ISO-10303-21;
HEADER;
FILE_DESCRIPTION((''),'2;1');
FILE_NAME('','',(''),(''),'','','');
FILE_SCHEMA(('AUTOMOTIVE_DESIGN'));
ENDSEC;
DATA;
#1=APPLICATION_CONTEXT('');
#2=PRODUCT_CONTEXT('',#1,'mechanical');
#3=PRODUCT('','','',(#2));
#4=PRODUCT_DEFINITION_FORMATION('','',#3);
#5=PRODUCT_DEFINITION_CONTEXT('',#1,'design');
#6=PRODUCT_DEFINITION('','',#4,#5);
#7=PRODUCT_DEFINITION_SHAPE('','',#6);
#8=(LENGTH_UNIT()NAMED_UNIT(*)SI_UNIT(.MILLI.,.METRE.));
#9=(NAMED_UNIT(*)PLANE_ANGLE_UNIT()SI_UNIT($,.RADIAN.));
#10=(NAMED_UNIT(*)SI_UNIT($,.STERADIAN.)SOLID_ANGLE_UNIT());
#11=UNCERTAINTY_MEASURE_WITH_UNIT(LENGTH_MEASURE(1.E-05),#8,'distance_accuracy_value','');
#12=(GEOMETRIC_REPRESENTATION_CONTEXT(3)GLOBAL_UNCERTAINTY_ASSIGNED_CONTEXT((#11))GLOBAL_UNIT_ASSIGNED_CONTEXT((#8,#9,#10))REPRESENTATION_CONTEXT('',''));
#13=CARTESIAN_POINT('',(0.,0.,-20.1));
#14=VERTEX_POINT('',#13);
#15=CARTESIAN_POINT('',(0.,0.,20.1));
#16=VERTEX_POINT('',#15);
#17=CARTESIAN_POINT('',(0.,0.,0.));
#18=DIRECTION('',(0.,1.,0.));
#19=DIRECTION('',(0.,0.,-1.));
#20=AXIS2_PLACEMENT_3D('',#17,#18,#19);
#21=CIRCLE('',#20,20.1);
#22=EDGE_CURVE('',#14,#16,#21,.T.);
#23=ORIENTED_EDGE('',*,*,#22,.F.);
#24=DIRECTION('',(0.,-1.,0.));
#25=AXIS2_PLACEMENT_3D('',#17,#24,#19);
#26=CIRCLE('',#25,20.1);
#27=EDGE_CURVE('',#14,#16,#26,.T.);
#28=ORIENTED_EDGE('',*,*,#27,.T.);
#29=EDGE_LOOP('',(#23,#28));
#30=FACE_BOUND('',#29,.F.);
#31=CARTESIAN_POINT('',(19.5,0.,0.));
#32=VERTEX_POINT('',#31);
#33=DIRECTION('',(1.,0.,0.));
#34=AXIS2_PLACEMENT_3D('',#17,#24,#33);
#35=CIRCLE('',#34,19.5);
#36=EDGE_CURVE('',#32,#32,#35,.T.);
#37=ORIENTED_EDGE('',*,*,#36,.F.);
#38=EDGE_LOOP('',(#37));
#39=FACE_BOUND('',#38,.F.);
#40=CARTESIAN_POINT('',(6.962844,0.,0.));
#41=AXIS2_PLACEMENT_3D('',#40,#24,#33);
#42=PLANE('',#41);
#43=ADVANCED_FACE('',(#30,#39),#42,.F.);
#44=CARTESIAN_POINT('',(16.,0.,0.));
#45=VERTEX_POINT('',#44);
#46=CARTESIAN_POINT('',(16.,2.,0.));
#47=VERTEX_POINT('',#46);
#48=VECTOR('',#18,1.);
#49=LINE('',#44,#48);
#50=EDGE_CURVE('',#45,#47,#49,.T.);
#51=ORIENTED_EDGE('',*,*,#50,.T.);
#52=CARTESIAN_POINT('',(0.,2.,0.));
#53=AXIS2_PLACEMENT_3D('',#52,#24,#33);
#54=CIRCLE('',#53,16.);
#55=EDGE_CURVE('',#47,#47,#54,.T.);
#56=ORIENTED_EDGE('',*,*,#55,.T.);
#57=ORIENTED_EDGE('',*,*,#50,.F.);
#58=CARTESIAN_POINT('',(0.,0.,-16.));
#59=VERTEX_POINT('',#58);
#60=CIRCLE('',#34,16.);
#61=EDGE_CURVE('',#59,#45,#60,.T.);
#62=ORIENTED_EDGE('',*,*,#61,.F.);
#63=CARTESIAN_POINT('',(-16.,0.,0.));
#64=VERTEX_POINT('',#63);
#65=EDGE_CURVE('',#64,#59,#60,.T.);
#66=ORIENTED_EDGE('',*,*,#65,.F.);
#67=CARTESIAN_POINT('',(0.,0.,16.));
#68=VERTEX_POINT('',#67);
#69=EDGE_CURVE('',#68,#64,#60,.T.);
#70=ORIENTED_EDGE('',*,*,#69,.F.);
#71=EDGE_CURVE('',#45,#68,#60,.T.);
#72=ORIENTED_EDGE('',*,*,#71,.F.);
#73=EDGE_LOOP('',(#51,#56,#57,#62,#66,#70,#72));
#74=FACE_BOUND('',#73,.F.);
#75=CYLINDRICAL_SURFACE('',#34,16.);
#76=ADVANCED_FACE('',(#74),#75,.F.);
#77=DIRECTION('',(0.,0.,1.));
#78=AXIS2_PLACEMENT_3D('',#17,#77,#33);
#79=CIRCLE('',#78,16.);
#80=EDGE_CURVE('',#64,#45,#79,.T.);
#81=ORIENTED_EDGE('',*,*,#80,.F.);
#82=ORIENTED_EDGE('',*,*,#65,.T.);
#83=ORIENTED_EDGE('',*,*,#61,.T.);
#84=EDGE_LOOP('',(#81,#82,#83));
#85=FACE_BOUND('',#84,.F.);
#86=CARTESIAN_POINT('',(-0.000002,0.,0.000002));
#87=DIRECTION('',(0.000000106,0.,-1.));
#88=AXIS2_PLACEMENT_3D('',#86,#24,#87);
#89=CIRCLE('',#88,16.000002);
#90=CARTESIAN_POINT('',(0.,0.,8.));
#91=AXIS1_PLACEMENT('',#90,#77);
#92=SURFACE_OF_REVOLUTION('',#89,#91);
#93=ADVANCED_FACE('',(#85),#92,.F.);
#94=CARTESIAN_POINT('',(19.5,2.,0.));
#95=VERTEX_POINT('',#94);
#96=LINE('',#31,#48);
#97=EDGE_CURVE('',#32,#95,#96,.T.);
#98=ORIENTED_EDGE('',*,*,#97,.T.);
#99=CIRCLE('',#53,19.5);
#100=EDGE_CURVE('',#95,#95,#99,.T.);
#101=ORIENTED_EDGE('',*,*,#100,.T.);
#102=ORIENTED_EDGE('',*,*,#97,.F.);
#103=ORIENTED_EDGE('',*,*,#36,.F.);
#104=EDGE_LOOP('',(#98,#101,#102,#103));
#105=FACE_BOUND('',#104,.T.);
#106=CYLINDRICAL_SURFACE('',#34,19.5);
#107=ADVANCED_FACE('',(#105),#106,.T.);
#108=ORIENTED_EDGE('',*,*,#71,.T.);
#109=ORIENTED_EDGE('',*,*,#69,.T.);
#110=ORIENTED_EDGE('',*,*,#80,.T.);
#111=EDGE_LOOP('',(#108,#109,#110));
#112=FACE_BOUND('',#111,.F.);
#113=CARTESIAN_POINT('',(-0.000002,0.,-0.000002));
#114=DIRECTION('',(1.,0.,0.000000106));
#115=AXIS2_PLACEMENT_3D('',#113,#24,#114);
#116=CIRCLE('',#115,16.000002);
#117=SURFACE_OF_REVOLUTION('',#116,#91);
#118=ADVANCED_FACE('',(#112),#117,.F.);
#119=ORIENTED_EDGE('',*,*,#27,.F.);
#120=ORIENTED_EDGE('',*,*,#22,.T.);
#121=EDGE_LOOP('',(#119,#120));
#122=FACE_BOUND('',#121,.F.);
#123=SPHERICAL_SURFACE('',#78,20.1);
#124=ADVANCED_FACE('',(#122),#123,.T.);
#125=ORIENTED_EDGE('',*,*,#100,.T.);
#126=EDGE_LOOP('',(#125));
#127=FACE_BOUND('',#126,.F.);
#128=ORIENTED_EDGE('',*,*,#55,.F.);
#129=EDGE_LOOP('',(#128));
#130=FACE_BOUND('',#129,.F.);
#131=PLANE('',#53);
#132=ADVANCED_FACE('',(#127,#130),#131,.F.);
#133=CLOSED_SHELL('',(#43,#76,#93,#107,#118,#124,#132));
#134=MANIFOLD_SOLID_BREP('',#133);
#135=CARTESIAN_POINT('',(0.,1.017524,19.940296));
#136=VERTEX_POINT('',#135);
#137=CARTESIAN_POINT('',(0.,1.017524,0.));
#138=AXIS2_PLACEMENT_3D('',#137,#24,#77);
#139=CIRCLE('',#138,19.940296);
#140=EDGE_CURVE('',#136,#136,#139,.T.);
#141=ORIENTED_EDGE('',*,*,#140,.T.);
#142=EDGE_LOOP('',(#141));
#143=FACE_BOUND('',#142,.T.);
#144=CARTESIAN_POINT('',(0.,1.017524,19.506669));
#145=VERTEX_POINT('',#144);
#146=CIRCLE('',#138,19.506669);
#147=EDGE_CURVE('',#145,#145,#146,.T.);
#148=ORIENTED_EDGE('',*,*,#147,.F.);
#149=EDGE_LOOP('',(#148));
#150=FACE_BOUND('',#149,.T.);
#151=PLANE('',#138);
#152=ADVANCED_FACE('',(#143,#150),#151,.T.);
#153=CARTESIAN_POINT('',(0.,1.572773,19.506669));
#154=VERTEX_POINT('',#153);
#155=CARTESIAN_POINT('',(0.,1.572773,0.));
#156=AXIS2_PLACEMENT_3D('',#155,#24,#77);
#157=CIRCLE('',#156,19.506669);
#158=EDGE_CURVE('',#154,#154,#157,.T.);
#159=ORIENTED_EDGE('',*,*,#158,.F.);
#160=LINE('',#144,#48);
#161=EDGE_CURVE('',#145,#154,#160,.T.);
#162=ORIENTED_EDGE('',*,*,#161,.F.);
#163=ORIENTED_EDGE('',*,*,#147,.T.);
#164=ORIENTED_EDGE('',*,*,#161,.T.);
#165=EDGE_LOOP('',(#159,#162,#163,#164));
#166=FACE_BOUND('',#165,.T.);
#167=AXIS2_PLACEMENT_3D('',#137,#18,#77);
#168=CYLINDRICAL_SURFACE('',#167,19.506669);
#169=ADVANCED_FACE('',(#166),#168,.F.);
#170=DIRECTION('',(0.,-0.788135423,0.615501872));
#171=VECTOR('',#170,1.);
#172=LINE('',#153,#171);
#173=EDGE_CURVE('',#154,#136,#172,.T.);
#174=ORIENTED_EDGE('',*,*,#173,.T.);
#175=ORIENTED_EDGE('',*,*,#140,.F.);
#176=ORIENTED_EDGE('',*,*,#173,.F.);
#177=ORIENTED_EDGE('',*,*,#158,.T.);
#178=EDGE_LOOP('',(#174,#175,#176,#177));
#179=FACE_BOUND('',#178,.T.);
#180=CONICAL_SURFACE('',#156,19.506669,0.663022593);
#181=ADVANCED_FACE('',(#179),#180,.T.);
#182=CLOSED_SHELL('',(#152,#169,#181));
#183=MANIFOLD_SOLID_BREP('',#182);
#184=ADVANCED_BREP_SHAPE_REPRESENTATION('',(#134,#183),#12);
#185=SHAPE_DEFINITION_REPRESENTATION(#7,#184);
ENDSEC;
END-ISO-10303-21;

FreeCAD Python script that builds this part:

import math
import FreeCAD as App
import Part
import Sketcher


def add_polygon(sketch, points):
    """Adds a closed chain of lines whose ends are joined by coincident constraints."""
    first, n = sketch.GeometryCount, len(points)
    for a, b in zip(points, points[1:] + points[:1]):
        sketch.addGeometry(Part.LineSegment(App.Vector(*a, 0), App.Vector(*b, 0)), False)
    for i in range(n):
        sketch.addConstraint(Sketcher.Constraint("Coincident", first + i, 2, first + (i + 1) % n, 1))

doc = App.newDocument("Part")
params = doc.addObject("Spreadsheet::Sheet", "Params")
for row, (alias, value) in enumerate([
    ("sketch1_radius", "20.1 mm"),
    ("revolution_angle", "180 deg"),
    ("sketch2_diameter", "39 mm"),
    ("sketch2_diameter2", "32 mm"),
    ("pad1_length", "2 mm"),
    ("sketch3_radius", "16.000002 mm"),
    ("groove_angle", "360 deg"),
    ("revolution2_angle", "360 deg"),
], start=1):
    params.set(f"A{row}", alias)
    params.set(f"B{row}", "=" + value)
    params.setAlias(f"B{row}", alias)

body = doc.addObject("PartDesign::Body", "Body")

# Sketch on XZ plane
sketch1 = doc.addObject("Sketcher::SketchObject", "Sketch")
body.addObject(sketch1)
sketch1.AttachmentSupport = (doc.XZ_Plane, [""])
sketch1.MapMode = "FlatFace"
sketch1.addGeometry([
    Part.ArcOfCircle(Part.Circle(App.Vector(0, 0, 0), App.Vector(0, 0, 1), 20), math.radians(-90), math.radians(90)),
    Part.LineSegment(App.Vector(0, 20, 0), App.Vector(0, -20, 0)),
], False)
sketch1.addConstraint([
    Sketcher.Constraint("Coincident", 0, 1, 1, 2),
    Sketcher.Constraint("Coincident", 1, 1, 0, 2),
    Sketcher.Constraint("Vertical", 1),
    Sketcher.Constraint("Coincident", 0, 3, -1, 1),
    Sketcher.Constraint("PointOnObject", 0, 1, -2),
    Sketcher.Constraint("Radius", 0, 20.1),
])
sketch1.setExpression("Constraints[5]", "Params.sketch1_radius")
revolution = doc.addObject("PartDesign::Revolution", "Revolution")
body.addObject(revolution)
revolution.Profile = sketch1
revolution.ReferenceAxis = (sketch1, ["V_Axis"])
revolution.setExpression("Angle", "Params.revolution_angle")
revolution.Reversed = True

# Sketch on XZ plane
sketch2 = doc.addObject("Sketcher::SketchObject", "Sketch001")
body.addObject(sketch2)
sketch2.AttachmentSupport = (doc.XZ_Plane, [""])
sketch2.MapMode = "FlatFace"
sketch2.addGeometry([
    Part.Circle(App.Vector(0, 0, 0), App.Vector(0, 0, 1), 20),
    Part.Circle(App.Vector(0, 0, 0), App.Vector(0, 0, 1), 16),
], False)
sketch2.addConstraint([
    Sketcher.Constraint("Coincident", 0, 3, -1, 1),
    Sketcher.Constraint("Coincident", 1, 3, -1, 1),
    Sketcher.Constraint("Diameter", 0, 39.0),
    Sketcher.Constraint("Diameter", 1, 32.0),
])
sketch2.setExpression("Constraints[2]", "Params.sketch2_diameter")
sketch2.setExpression("Constraints[3]", "Params.sketch2_diameter2")
pad1 = doc.addObject("PartDesign::Pad", "Pad")
body.addObject(pad1)
pad1.Profile = sketch2
pad1.setExpression("Length", "Params.pad1_length")
pad1.Reversed = True

# Sketch on XZ plane
sketch3 = doc.addObject("Sketcher::SketchObject", "Sketch002")
body.addObject(sketch3)
sketch3.AttachmentSupport = (doc.XZ_Plane, [""])
sketch3.MapMode = "FlatFace"
sketch3.addGeometry([
    Part.ArcOfCircle(Part.Circle(App.Vector(0, 0, 0), App.Vector(0, 0, 1), 16), math.radians(0), math.radians(90)),
    Part.LineSegment(App.Vector(0, 16, 0), App.Vector(0, -16, 0)),
    Part.ArcOfCircle(Part.Circle(App.Vector(0, 0, 0), App.Vector(0, 0, 1), 16), math.radians(-90), math.radians(0)),
], False)
sketch3.addConstraint([
    Sketcher.Constraint("Coincident", 0, 2, 1, 1),
    Sketcher.Constraint("Coincident", 1, 2, 2, 1),
    Sketcher.Constraint("Tangent", 2, 2, 0, 1),
    Sketcher.Constraint("Vertical", 1),
    Sketcher.Constraint("Coincident", 0, 3, -1, 1),
    Sketcher.Constraint("Equal", 0, 2),
    Sketcher.Constraint("PointOnObject", 0, 2, -2),
    Sketcher.Constraint("PointOnObject", 2, 2, -1),
    Sketcher.Constraint("Radius", 0, 16.000002),
])
sketch3.setExpression("Constraints[8]", "Params.sketch3_radius")
groove = doc.addObject("PartDesign::Groove", "Groove")
body.addObject(groove)
groove.Profile = sketch3
groove.ReferenceAxis = (sketch3, ["V_Axis"])
groove.setExpression("Angle", "Params.groove_angle")
body2 = doc.addObject("PartDesign::Body", "Body001")

# Sketch on YZ plane
sketch4 = doc.addObject("Sketcher::SketchObject", "Sketch003")
body2.addObject(sketch4)
sketch4.AttachmentSupport = (doc.getObject("YZ_Plane001"), [""])
sketch4.MapMode = "FlatFace"
add_polygon(sketch4, [(1.02, 19.51), (1.57, 19.51), (1.02, 19.94)])  # lines 0-2
sketch4.addConstraint([
    Sketcher.Constraint("Horizontal", 0),
    Sketcher.Constraint("Vertical", 2),
    Sketcher.Constraint("DistanceX", 0, 1, 0, 2, 0.555249),
    Sketcher.Constraint("Distance", 1, 0.70451),
    Sketcher.Constraint("DistanceY", -1, 1, 0, 2, 19.506669),
    Sketcher.Constraint("DistanceX", -1, 1, 0, 2, 1.572773),
])
revolution2 = doc.addObject("PartDesign::Revolution", "Revolution001")
body2.addObject(revolution2)
revolution2.Profile = sketch4
revolution2.ReferenceAxis = (sketch4, ["H_Axis"])
revolution2.setExpression("Angle", "Params.revolution2_angle")

doc.recompute()
